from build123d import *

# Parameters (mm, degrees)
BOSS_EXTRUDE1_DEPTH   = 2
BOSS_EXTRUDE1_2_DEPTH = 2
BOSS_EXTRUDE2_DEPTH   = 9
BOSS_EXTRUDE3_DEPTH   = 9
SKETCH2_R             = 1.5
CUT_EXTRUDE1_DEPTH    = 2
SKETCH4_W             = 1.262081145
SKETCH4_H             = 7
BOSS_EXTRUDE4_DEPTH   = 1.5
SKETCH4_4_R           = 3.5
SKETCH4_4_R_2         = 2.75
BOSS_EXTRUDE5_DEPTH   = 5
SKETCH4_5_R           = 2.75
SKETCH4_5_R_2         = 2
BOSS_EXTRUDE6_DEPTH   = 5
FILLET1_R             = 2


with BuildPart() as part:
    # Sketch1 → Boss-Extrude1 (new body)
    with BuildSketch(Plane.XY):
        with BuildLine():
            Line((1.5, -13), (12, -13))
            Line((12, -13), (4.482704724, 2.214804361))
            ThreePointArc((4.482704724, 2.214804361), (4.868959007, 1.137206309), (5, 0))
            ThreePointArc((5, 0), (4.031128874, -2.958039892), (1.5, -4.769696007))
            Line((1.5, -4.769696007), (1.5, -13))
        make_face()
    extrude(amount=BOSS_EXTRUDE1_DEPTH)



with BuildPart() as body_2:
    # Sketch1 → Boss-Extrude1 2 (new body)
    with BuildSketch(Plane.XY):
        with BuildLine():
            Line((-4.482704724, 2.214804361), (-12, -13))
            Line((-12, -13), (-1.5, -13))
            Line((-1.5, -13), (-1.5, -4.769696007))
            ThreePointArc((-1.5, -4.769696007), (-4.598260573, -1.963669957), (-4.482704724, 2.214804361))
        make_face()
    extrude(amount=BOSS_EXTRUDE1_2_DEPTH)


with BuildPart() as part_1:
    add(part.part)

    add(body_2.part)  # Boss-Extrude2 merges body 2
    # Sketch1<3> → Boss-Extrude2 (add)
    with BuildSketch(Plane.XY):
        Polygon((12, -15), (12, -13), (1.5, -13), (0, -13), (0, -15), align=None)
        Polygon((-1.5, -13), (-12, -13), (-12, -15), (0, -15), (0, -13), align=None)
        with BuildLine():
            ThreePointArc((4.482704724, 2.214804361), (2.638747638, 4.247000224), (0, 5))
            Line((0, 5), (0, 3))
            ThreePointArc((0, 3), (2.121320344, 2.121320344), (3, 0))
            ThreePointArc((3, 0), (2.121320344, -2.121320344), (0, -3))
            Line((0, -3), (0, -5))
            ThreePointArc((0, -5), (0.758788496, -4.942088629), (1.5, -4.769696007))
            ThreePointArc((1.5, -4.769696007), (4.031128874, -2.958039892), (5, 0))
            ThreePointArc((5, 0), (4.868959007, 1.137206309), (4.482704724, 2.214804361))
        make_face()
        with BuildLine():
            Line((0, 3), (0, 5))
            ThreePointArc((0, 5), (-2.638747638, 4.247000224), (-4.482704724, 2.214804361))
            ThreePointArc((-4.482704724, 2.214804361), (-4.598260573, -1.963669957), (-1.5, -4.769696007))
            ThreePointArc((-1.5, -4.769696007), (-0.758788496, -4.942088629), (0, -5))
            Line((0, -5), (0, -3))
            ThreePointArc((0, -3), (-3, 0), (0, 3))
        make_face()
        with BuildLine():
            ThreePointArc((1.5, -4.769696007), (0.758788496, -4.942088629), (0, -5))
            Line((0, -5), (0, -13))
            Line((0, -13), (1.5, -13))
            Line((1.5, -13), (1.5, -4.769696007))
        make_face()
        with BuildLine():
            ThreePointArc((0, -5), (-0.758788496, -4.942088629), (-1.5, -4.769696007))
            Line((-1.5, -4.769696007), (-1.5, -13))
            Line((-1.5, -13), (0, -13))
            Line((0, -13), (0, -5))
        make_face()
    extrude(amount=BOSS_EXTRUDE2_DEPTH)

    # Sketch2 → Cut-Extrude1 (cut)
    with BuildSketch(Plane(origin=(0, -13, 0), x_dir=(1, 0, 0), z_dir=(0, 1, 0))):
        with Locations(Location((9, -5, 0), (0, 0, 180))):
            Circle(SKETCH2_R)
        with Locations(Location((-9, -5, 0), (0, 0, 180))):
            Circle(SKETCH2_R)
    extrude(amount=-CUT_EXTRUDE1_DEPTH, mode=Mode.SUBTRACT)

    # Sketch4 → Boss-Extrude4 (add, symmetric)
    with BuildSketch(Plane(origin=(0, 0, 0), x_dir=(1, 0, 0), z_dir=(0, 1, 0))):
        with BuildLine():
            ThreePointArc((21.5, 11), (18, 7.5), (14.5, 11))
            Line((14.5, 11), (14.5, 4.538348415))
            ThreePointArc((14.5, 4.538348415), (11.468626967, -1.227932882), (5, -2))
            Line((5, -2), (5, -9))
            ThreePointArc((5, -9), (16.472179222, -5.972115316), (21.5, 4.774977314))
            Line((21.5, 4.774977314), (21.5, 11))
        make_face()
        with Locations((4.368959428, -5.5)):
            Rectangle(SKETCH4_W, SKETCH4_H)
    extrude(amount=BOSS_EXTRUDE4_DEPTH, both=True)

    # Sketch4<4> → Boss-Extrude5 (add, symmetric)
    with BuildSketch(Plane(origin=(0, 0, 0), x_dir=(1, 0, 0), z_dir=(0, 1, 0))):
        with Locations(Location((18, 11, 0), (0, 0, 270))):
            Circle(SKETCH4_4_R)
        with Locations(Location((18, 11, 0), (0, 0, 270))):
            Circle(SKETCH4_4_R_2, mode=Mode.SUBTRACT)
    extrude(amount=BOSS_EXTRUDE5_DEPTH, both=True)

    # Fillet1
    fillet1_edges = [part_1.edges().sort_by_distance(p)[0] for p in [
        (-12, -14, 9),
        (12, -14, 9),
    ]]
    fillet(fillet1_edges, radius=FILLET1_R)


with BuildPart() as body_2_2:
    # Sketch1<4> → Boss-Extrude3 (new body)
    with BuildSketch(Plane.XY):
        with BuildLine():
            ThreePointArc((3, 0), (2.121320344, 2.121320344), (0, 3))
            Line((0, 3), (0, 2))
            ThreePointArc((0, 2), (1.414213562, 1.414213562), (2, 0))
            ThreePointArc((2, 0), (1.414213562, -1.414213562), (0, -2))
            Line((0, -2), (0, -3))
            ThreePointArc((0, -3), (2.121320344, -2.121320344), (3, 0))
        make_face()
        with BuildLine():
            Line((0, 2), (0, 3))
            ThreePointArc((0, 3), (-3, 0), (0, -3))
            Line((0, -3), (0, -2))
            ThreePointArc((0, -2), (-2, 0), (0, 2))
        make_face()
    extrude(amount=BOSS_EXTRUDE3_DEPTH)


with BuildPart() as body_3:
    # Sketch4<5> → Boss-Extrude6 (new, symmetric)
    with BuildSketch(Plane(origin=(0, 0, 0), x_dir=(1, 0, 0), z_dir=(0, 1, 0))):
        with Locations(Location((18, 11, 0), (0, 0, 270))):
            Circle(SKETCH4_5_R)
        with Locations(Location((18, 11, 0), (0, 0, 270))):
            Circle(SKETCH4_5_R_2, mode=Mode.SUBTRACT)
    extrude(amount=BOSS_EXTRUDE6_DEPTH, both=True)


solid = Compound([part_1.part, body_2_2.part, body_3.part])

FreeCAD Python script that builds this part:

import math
import FreeCAD as App
import Part
import Sketcher
Q = App.Units.Quantity


def edges_at(feature, points):
    """Names of the edges that pass closest to the given points."""
    edges = feature.Shape.Edges
    near = lambda p: min(range(len(edges)), key=lambda i: edges[i].distToShape(Part.Vertex(*p))[0])
    return sorted({f"Edge{near(p) + 1}" for p in points})

doc = App.newDocument("Part")
body = doc.addObject("PartDesign::Body", "Body")

# Sketch on XY plane
sketch1 = body.newObject("Sketcher::SketchObject", "Sketch")
sketch1.AttachmentSupport = (doc.getObject("XY_Plane"), [""])
sketch1.MapMode = "FlatFace"
sketch1.addGeometry([
    Part.LineSegment(App.Vector(1.5, -13, 0), App.Vector(12, -13, 0)),  # 0
    Part.LineSegment(App.Vector(12, -13, 0), App.Vector(4.5, 2.2, 0)),  # 1
    Part.ArcOfCircle(Part.Circle(App.Vector(0, 0, 0), App.Vector(0, 0, 1), 5), math.radians(0), math.radians(26)),  # 2
    Part.ArcOfCircle(Part.Circle(App.Vector(0, 0, 0), App.Vector(0, 0, 1), 5), math.radians(-73), math.radians(0)),  # 3
    Part.LineSegment(App.Vector(1.5, -4.8, 0), App.Vector(1.5, -13, 0)),  # 4
], False)
sketch1.addConstraint([
    Sketcher.Constraint("Coincident", 0, 2, 1, 1),
    Sketcher.Constraint("Tangent", 1, 2, 2, 2),
    Sketcher.Constraint("Tangent", 2, 1, 3, 2),
    Sketcher.Constraint("Coincident", 3, 1, 4, 1),
    Sketcher.Constraint("Coincident", 4, 2, 0, 1),
    Sketcher.Constraint("Horizontal", 0),
    Sketcher.Constraint("Vertical", 4),
    Sketcher.Constraint("Coincident", 2, 3, -1, 1),
    Sketcher.Constraint("Equal", 2, 3),
    Sketcher.Constraint("PointOnObject", 2, 1, -1),
    Sketcher.Constraint("Radius", 2, Q("5 mm")),
    Sketcher.Constraint("DistanceX", 0, 1, 0, 2, Q("10.5 mm")),
    Sketcher.Constraint("DistanceX", -1, 1, 0, 2, Q("12 mm")),
    Sketcher.Constraint("DistanceY", 0, 2, -1, 1, Q("13 mm")),
])
pad1 = body.newObject("PartDesign::Pad", "Pad")
pad1.Profile = sketch1
pad1.Length = 2
body2 = doc.addObject("PartDesign::Body", "Body001")

# Sketch on XY plane
sketch2 = body2.newObject("Sketcher::SketchObject", "Sketch001")
sketch2.AttachmentSupport = (doc.getObject("XY_Plane001"), [""])
sketch2.MapMode = "FlatFace"
sketch2.addGeometry([
    Part.LineSegment(App.Vector(-4, 2, 0), App.Vector(-12, -13, 0)),
    Part.LineSegment(App.Vector(-12, -13, 0), App.Vector(-2, -13, 0)),
    Part.LineSegment(App.Vector(-2, -13, 0), App.Vector(-2, -5, 0)),
    Part.ArcOfCircle(Part.Circle(App.Vector(0, 0, 0), App.Vector(0, 0, 1), 5), math.radians(154), math.radians(253)),
], False)
sketch2.addConstraint([
    Sketcher.Constraint("Coincident", 0, 2, 1, 1),
    Sketcher.Constraint("Coincident", 1, 2, 2, 1),
    Sketcher.Constraint("Coincident", 2, 2, 3, 2),
    Sketcher.Constraint("Tangent", 3, 1, 0, 1),
    Sketcher.Constraint("Horizontal", 1),
    Sketcher.Constraint("Vertical", 2),
    Sketcher.Constraint("Coincident", 3, 3, -1, 1),
    Sketcher.Constraint("Radius", 3, Q("5 mm")),
    Sketcher.Constraint("DistanceX", 1, 1, 1, 2, Q("10.5 mm")),
    Sketcher.Constraint("DistanceX", 0, 2, -1, 1, Q("12 mm")),
    Sketcher.Constraint("DistanceY", 0, 2, -1, 1, Q("13 mm")),
])
pad2 = body2.newObject("PartDesign::Pad", "Pad001")
pad2.Profile = sketch2
pad2.Length = 2
body.AllowCompound = True
doc.recompute()

boolean = body.newObject("PartDesign::Boolean", "Boolean")
boolean.Type = "Fuse"
boolean.addObjects([body2])

# Sketch on XY plane
sketch3 = body.newObject("Sketcher::SketchObject", "Sketch002")
sketch3.AttachmentSupport = (doc.getObject("XY_Plane"), [""])
sketch3.MapMode = "FlatFace"
sketch3.addGeometry([
    Part.LineSegment(App.Vector(12, -15, 0), App.Vector(12, -13, 0)),  # 0
    Part.LineSegment(App.Vector(12, -13, 0), App.Vector(1.5, -13, 0)),  # 1
    Part.LineSegment(App.Vector(1.5, -13, 0), App.Vector(1.5, -4.8, 0)),  # 2
    Part.ArcOfCircle(Part.Circle(App.Vector(0, 0, 0), App.Vector(0, 0, 1), 5), math.radians(-73), math.radians(0)),  # 3
    Part.ArcOfCircle(Part.Circle(App.Vector(0, 0, 0), App.Vector(0, 0, 1), 5), math.radians(0), math.radians(26)),  # 4
    Part.ArcOfCircle(Part.Circle(App.Vector(0, 0, 0), App.Vector(0, 0, 1), 5), math.radians(26), math.radians(90)),  # 5
    Part.ArcOfCircle(Part.Circle(App.Vector(0, 0, 0), App.Vector(0, 0, 1), 5), math.radians(90), math.radians(154)),  # 6
    Part.ArcOfCircle(Part.Circle(App.Vector(0, 0, 0), App.Vector(0, 0, 1), 5), math.radians(154), math.radians(253)),  # 7
    Part.LineSegment(App.Vector(-1.5, -4.8, 0), App.Vector(-1.5, -13, 0)),  # 8
    Part.LineSegment(App.Vector(-1.5, -13, 0), App.Vector(-12, -13, 0)),  # 9
    Part.LineSegment(App.Vector(-12, -13, 0), App.Vector(-12, -15, 0)),  # 10
    Part.LineSegment(App.Vector(-12, -15, 0), App.Vector(12, -15, 0)),  # 11
    Part.ArcOfCircle(Part.Circle(App.Vector(0, 0, 0), App.Vector(0, 0, 1), 3), math.radians(0), math.radians(90)),  # 12
    Part.ArcOfCircle(Part.Circle(App.Vector(0, 0, 0), App.Vector(0, 0, 1), 3), math.radians(-90), math.radians(0)),  # 13
    Part.ArcOfCircle(Part.Circle(App.Vector(0, 0, 0), App.Vector(0, 0, 1), 3), math.radians(90), math.radians(270)),  # 14
], False)
sketch3.addConstraint([
    Sketcher.Constraint("Coincident", 0, 2, 1, 1),
    Sketcher.Constraint("Coincident", 1, 2, 2, 1),
    Sketcher.Constraint("Coincident", 2, 2, 3, 1),
    Sketcher.Constraint("Tangent", 3, 2, 4, 1),
    Sketcher.Constraint("Tangent", 4, 2, 5, 1),
    Sketcher.Constraint("Tangent", 5, 2, 6, 1),
    Sketcher.Constraint("Tangent", 6, 2, 7, 1),
    Sketcher.Constraint("Coincident", 7, 2, 8, 1),
    Sketcher.Constraint("Coincident", 8, 2, 9, 1),
    Sketcher.Constraint("Coincident", 9, 2, 10, 1),
    Sketcher.Constraint("Coincident", 10, 2, 11, 1),
    Sketcher.Constraint("Coincident", 11, 2, 0, 1),
    Sketcher.Constraint("Tangent", 12, 1, 13, 2),
    Sketcher.Constraint("Tangent", 13, 1, 14, 2),
    Sketcher.Constraint("Tangent", 14, 1, 12, 2),
    Sketcher.Constraint("Vertical", 0),
    Sketcher.Constraint("Horizontal", 1),
    Sketcher.Constraint("Vertical", 2),
    Sketcher.Constraint("Vertical", 8),
    Sketcher.Constraint("Horizontal", 9),
    Sketcher.Constraint("Vertical", 10),
    Sketcher.Constraint("Horizontal", 11),
    Sketcher.Constraint("Coincident", 3, 3, -1, 1),
    Sketcher.Constraint("Coincident", 5, 3, -1, 1),
    Sketcher.Constraint("Coincident", 7, 3, -1, 1),
    Sketcher.Constraint("Coincident", 12, 3, -1, 1),
    Sketcher.Constraint("Symmetric", 1, 2, 8, 2, -2),
    Sketcher.Constraint("PointOnObject", 3, 2, -1),
    Sketcher.Constraint("PointOnObject", 5, 2, -2),
    Sketcher.Constraint("PointOnObject", 12, 1, -1),
    Sketcher.Constraint("PointOnObject", 13, 1, -2),
    Sketcher.Constraint("PointOnObject", 14, 1, -2),
    Sketcher.Constraint("Horizontal", 4, 2, 6, 2),
    Sketcher.Constraint("Equal", 1, 9),
    Sketcher.Constraint("Radius", 3, Q("5 mm")),
    Sketcher.Constraint("Radius", 12, Q("3 mm")),
    Sketcher.Constraint("DistanceX", 11, 1, 11, 2, Q("24 mm")),
    Sketcher.Constraint("DistanceY", 0, 1, 0, 2, Q("2 mm")),
    Sketcher.Constraint("DistanceX", 1, 2, 1, 1, Q("10.5 mm")),
    Sketcher.Constraint("DistanceY", 0, 2, -1, 1, Q("13 mm")),
    Sketcher.Constraint("DistanceX", -1, 1, 4, 2, Q("4.482705 mm")),
])
pad3 = body.newObject("PartDesign::Pad", "Pad002")
pad3.Profile = sketch3
pad3.Length = 9

# Sketch on XZ plane
sketch4 = body.newObject("Sketcher::SketchObject", "Sketch003")
sketch4.AttachmentSupport = (doc.getObject("XZ_Plane"), [""])
sketch4.MapMode = "FlatFace"
sketch4.AttachmentOffset = App.Placement(App.Vector(0, 0, 13), App.Rotation())
sketch4.addGeometry([
    Part.Circle(App.Vector(9, 5, 0), App.Vector(0, 0, 1), 1.5),
    Part.Circle(App.Vector(-9, 5, 0), App.Vector(0, 0, 1), 1.5),
], False)
sketch4.addConstraint([
    Sketcher.Constraint("Equal", 0, 1),
    Sketcher.Constraint("Symmetric", 0, 3, 1, 3, -2),
    Sketcher.Constraint("Diameter", 0, Q("3 mm")),
    Sketcher.Constraint("DistanceX", -1, 1, 0, 3, Q("9 mm")),
    Sketcher.Constraint("DistanceY", -1, 1, 0, 3, Q("5 mm")),
])
pocket1 = body.newObject("PartDesign::Pocket", "Pocket")
pocket1.Profile = sketch4
pocket1.Length = 2
pocket1.Reversed = True

# Sketch on XZ plane
sketch5 = body.newObject("Sketcher::SketchObject", "Sketch004")
sketch5.AttachmentSupport = (doc.getObject("XZ_Plane"), [""])
sketch5.MapMode = "FlatFace"
sketch5.addGeometry([
    Part.ArcOfCircle(Part.Circle(App.Vector(18, -11, 0), App.Vector(0, 0, 1), 3.5), math.radians(0), math.radians(180)),  # 0
    Part.LineSegment(App.Vector(14.5, -11, 0), App.Vector(14.5, -4.5, 0)),  # 1
    Part.ArcOfCircle(Part.Circle(App.Vector(7.5, -4.5, 0), App.Vector(0, 0, 1), 7), math.radians(0), math.radians(111)),  # 2
    Part.LineSegment(App.Vector(5, 2, 0), App.Vector(3.7, 2, 0)),  # 3
    Part.LineSegment(App.Vector(3.7, 2, 0), App.Vector(3.7, 9, 0)),  # 4
    Part.LineSegment(App.Vector(3.7, 9, 0), App.Vector(5, 9, 0)),  # 5
    Part.ArcOfCircle(Part.Circle(App.Vector(7.5, -4.8, 0), App.Vector(0, 0, 1), 14), math.radians(0), math.radians(100)),  # 6
    Part.LineSegment(App.Vector(21.5, -4.8, 0), App.Vector(21.5, -11, 0)),  # 7
], False)
sketch5.addConstraint([
    Sketcher.Constraint("Tangent", 0, 2, 1, 1),
    Sketcher.Constraint("Tangent", 1, 2, 2, 1),
    Sketcher.Constraint("Coincident", 2, 2, 3, 1),
    Sketcher.Constraint("Coincident", 3, 2, 4, 1),
    Sketcher.Constraint("Coincident", 4, 2, 5, 1),
    Sketcher.Constraint("Coincident", 5, 2, 6, 2),
    Sketcher.Constraint("Tangent", 6, 1, 7, 1),
    Sketcher.Constraint("Tangent", 7, 2, 0, 1),
    Sketcher.Constraint("Vertical", 1),
    Sketcher.Constraint("Horizontal", 3),
    Sketcher.Constraint("Vertical", 4),
    Sketcher.Constraint("Horizontal", 5),
    Sketcher.Constraint("Vertical", 7),
    Sketcher.Constraint("Vertical", 2, 3, 6, 3),
    Sketcher.Constraint("Vertical", 2, 2, 5, 2),
    Sketcher.Constraint("Radius", 2, Q("7 mm")),
    Sketcher.Constraint("Radius", 6, Q("14 mm")),
    Sketcher.Constraint("DistanceY", 4, 1, 4, 2, Q("7 mm")),
    Sketcher.Constraint("DistanceX", -1, 1, 0, 3, Q("18 mm")),
    Sketcher.Constraint("DistanceY", 0, 3, -1, 1, Q("11 mm")),
    Sketcher.Constraint("DistanceX", -1, 1, 2, 2, Q("5 mm")),
    Sketcher.Constraint("DistanceY", -1, 1, 2, 2, Q("2 mm")),
    Sketcher.Constraint("DistanceX", 3, 2, 3, 1, Q("1.262081 mm")),
])
pad4 = body.newObject("PartDesign::Pad", "Pad003")
pad4.Profile = sketch5
pad4.Length = 3
pad4.Midplane = True

# Sketch on XZ plane
sketch6 = body.newObject("Sketcher::SketchObject", "Sketch005")
sketch6.AttachmentSupport = (doc.getObject("XZ_Plane"), [""])
sketch6.MapMode = "FlatFace"
sketch6.addGeometry([
    Part.Circle(App.Vector(18, -11, 0), App.Vector(0, 0, 1), 3.5),
    Part.Circle(App.Vector(18, -11, 0), App.Vector(0, 0, 1), 2.8),
], False)
sketch6.addConstraint([
    Sketcher.Constraint("Coincident", 1, 3, 0, 3),
    Sketcher.Constraint("Diameter", 0, Q("7 mm")),
    Sketcher.Constraint("Diameter", 1, Q("5.5 mm")),
    Sketcher.Constraint("DistanceX", -1, 1, 0, 3, Q("18 mm")),
    Sketcher.Constraint("DistanceY", 0, 3, -1, 1, Q("11 mm")),
])
pad5 = body.newObject("PartDesign::Pad", "Pad004")
pad5.Profile = sketch6
pad5.Length = 10
pad5.Midplane = True
doc.recompute()

fillet = body.newObject("PartDesign::Fillet", "Fillet")
fillet.Base = (pad5, edges_at(pad5, [(-12, -14, 9), (12, -14, 9)]))
fillet.Radius = 2
body3 = doc.addObject("PartDesign::Body", "Body002")

# Sketch on XY plane
sketch7 = body3.newObject("Sketcher::SketchObject", "Sketch006")
sketch7.AttachmentSupport = (doc.getObject("XY_Plane002"), [""])
sketch7.MapMode = "FlatFace"
sketch7.addGeometry([
    Part.ArcOfCircle(Part.Circle(App.Vector(0, 0, 0), App.Vector(0, 0, 1), 3), math.radians(0), math.radians(90)),  # 0
    Part.ArcOfCircle(Part.Circle(App.Vector(0, 0, 0), App.Vector(0, 0, 1), 3), math.radians(90), math.radians(270)),  # 1
    Part.ArcOfCircle(Part.Circle(App.Vector(0, 0, 0), App.Vector(0, 0, 1), 3), math.radians(-90), math.radians(0)),  # 2
    Part.ArcOfCircle(Part.Circle(App.Vector(0, 0, 0), App.Vector(0, 0, 1), 2), math.radians(-90), math.radians(0)),  # 3
    Part.ArcOfCircle(Part.Circle(App.Vector(0, 0, 0), App.Vector(0, 0, 1), 2), math.radians(90), math.radians(270)),  # 4
    Part.ArcOfCircle(Part.Circle(App.Vector(0, 0, 0), App.Vector(0, 0, 1), 2), math.radians(0), math.radians(90)),  # 5
], False)
sketch7.addConstraint([
    Sketcher.Constraint("Tangent", 0, 2, 1, 1),
    Sketcher.Constraint("Tangent", 1, 2, 2, 1),
    Sketcher.Constraint("Tangent", 2, 2, 0, 1),
    Sketcher.Constraint("Tangent", 3, 1, 4, 2),
    Sketcher.Constraint("Tangent", 4, 1, 5, 2),
    Sketcher.Constraint("Tangent", 5, 1, 3, 2),
    Sketcher.Constraint("Coincident", 0, 3, -1, 1),
    Sketcher.Constraint("Coincident", 3, 3, -1, 1),
    Sketcher.Constraint("PointOnObject", 0, 2, -2),
    Sketcher.Constraint("PointOnObject", 1, 2, -2),
    Sketcher.Constraint("PointOnObject", 2, 2, -1),
    Sketcher.Constraint("PointOnObject", 3, 1, -2),
    Sketcher.Constraint("PointOnObject", 4, 1, -2),
    Sketcher.Constraint("PointOnObject", 5, 1, -1),
    Sketcher.Constraint("Radius", 0, Q("3 mm")),
    Sketcher.Constraint("Radius", 3, Q("2 mm")),
])
pad6 = body3.newObject("PartDesign::Pad", "Pad005")
pad6.Profile = sketch7
pad6.Length = 9
body4 = doc.addObject("PartDesign::Body", "Body003")

# Sketch on XZ plane
sketch8 = body4.newObject("Sketcher::SketchObject", "Sketch007")
sketch8.AttachmentSupport = (doc.getObject("XZ_Plane003"), [""])
sketch8.MapMode = "FlatFace"
sketch8.addGeometry([
    Part.Circle(App.Vector(18, -11, 0), App.Vector(0, 0, 1), 2.8),
    Part.Circle(App.Vector(18, -11, 0), App.Vector(0, 0, 1), 2),
], False)
sketch8.addConstraint([
    Sketcher.Constraint("Coincident", 1, 3, 0, 3),
    Sketcher.Constraint("Diameter", 1, Q("4 mm")),
    Sketcher.Constraint("Diameter", 0, Q("5.5 mm")),
    Sketcher.Constraint("DistanceX", -1, 1, 0, 3, Q("18 mm")),
    Sketcher.Constraint("DistanceY", 0, 3, -1, 1, Q("11 mm")),
])
pad7 = body4.newObject("PartDesign::Pad", "Pad006")
pad7.Profile = sketch8
pad7.Length = 10
pad7.Midplane = True

doc.recompute()
